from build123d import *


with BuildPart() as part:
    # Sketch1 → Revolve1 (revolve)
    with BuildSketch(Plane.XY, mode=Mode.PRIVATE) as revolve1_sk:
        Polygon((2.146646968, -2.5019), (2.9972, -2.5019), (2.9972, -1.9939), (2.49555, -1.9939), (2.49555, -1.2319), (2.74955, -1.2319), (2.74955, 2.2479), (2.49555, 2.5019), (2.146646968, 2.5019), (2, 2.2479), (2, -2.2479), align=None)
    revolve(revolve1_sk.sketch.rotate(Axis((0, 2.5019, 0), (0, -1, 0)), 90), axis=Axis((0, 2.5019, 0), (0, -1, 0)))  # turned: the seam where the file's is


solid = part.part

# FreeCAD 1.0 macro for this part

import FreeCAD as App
import Part
import Sketcher
from FreeCAD import Vector
Q = App.Units.Quantity

doc = App.newDocument("Part")
body = doc.addObject("PartDesign::Body", "Body")

# Sketch on XY plane
sketch1 = body.newObject("Sketcher::SketchObject", "Sketch")
sketch1.AttachmentSupport = (doc.getObject("XY_Plane"), [""])
sketch1.MapMode = "FlatFace"
sketch1.addGeometry([
    Part.LineSegment(Vector(2.146647, -2.5019, 0), Vector(2.9972, -2.5019, 0)),  # 0
    Part.LineSegment(Vector(2.9972, -2.5019, 0), Vector(2.9972, -1.9939, 0)),  # 1
    Part.LineSegment(Vector(2.9972, -1.9939, 0), Vector(2.49555, -1.9939, 0)),  # 2
    Part.LineSegment(Vector(2.49555, -1.9939, 0), Vector(2.49555, -1.2319, 0)),  # 3
    Part.LineSegment(Vector(2.49555, -1.2319, 0), Vector(2.74955, -1.2319, 0)),  # 4
    Part.LineSegment(Vector(2.74955, -1.2319, 0), Vector(2.74955, 2.2479, 0)),  # 5
    Part.LineSegment(Vector(2.74955, 2.2479, 0), Vector(2.49555, 2.5019, 0)),  # 6
    Part.LineSegment(Vector(2.49555, 2.5019, 0), Vector(2.146647, 2.5019, 0)),  # 7
    Part.LineSegment(Vector(2.146647, 2.5019, 0), Vector(2, 2.2479, 0)),  # 8
    Part.LineSegment(Vector(2, 2.2479, 0), Vector(2, -2.2479, 0)),  # 9
    Part.LineSegment(Vector(2, -2.2479, 0), Vector(2.146647, -2.5019, 0)),  # 10
], False)
sketch1.addConstraint([
    Sketcher.Constraint("Coincident", 0, 2, 1, 1),
    Sketcher.Constraint("Coincident", 1, 2, 2, 1),
    Sketcher.Constraint("Coincident", 2, 2, 3, 1),
    Sketcher.Constraint("Coincident", 3, 2, 4, 1),
    Sketcher.Constraint("Coincident", 4, 2, 5, 1),
    Sketcher.Constraint("Coincident", 5, 2, 6, 1),
    Sketcher.Constraint("Coincident", 6, 2, 7, 1),
    Sketcher.Constraint("Coincident", 7, 2, 8, 1),
    Sketcher.Constraint("Coincident", 8, 2, 9, 1),
    Sketcher.Constraint("Coincident", 9, 2, 10, 1),
    Sketcher.Constraint("Coincident", 10, 2, 0, 1),
    Sketcher.Constraint("Horizontal", 0),
    Sketcher.Constraint("Vertical", 1),
    Sketcher.Constraint("Horizontal", 2),
    Sketcher.Constraint("Vertical", 3),
    Sketcher.Constraint("Horizontal", 4),
    Sketcher.Constraint("Vertical", 5),
    Sketcher.Constraint("Horizontal", 7),
    Sketcher.Constraint("Vertical", 9),
    Sketcher.Constraint("Symmetric", 7, 2, 10, 2, -1),
    Sketcher.Constraint("Horizontal", 5, 2, 8, 2),
    Sketcher.Constraint("Vertical", 3, 2, 6, 2),
    Sketcher.Constraint("Equal", 8, 10),
    Sketcher.Constraint("Angle", 6, Q("135 deg")),
    Sketcher.Constraint("Angle", 8, Q("-120 deg")),
    Sketcher.Constraint("DistanceX", 4, 1, 4, 2, Q("0.01 in")),
    Sketcher.Constraint("DistanceY", 1, 1, 1, 2, Q("0.02 in")),
    Sketcher.Constraint("DistanceY", 3, 1, 3, 2, Q("0.03 in")),
    Sketcher.Constraint("DistanceY", 5, 1, 5, 2, Q("0.137 in")),
    Sketcher.Constraint("DistanceX", -1, 1, 0, 2, Q("0.118 in")),
    Sketcher.Constraint("DistanceX", 2, 2, 2, 1, 0.50165),
    Sketcher.Constraint("DistanceX", -1, 1, 8, 2, 2.0),
])
revolution = body.newObject("PartDesign::Revolution", "Revolution")
revolution.Profile = sketch1
revolution.ReferenceAxis = (sketch1, ["V_Axis"])
revolution.Angle = 360

doc.recompute()
